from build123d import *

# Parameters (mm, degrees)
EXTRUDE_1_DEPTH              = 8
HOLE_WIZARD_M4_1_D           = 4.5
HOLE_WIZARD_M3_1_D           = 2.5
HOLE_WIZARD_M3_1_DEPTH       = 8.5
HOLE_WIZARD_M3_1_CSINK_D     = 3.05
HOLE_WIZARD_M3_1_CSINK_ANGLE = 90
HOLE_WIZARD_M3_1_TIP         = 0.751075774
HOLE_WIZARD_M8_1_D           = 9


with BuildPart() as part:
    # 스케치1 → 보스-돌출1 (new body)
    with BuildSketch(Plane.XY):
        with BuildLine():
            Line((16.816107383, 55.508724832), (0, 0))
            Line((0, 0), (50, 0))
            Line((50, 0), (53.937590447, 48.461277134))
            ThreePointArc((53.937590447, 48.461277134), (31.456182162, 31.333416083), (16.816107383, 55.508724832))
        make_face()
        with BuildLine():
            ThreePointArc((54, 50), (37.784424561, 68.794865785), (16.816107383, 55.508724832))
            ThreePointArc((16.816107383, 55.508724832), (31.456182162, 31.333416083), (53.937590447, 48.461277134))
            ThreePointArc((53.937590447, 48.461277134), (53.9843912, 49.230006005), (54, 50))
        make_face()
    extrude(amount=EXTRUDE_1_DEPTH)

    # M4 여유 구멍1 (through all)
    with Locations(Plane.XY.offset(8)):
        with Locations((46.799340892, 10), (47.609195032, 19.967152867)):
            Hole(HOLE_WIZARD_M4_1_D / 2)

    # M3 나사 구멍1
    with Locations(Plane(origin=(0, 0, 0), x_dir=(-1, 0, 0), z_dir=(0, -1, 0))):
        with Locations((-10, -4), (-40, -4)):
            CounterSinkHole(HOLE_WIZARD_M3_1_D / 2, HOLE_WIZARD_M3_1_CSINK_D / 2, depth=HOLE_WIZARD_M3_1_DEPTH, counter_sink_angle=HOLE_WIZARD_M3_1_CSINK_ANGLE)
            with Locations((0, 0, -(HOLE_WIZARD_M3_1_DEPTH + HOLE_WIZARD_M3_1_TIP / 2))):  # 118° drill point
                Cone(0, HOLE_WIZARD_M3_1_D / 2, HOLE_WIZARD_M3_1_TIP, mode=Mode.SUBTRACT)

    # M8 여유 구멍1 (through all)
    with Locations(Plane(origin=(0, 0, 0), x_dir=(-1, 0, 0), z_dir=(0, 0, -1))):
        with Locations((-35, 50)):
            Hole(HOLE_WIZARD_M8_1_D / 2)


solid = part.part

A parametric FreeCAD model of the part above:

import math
import FreeCAD as App
import Part
import Sketcher
from FreeCAD import Vector

doc = App.newDocument("Part")
params = doc.addObject("Spreadsheet::Sheet", "Params")
for row, (alias, value) in enumerate([
    ("sketch1_radius", "19 mm"),
    ("sketch1_width", "50 mm"),
    ("sketch1_length", "58 mm"),
    ("pad1_length", "8 mm"),
    ("sketch2_diameter", "4.5 mm"),
    ("hole_diameter", "4.5 mm"),
    ("sketch3_diameter", "2.5 mm"),
    ("hole2_diameter", "2.5 mm"),
    ("hole2_depth", "8.5 mm"),
    ("hole2_csink_diameter", "3.05 mm"),
    ("sketch4_diameter", "9 mm"),
    ("hole3_diameter", "9 mm"),
], start=1):
    params.set(f"A{row}", alias)
    params.set(f"B{row}", "=" + value)
    params.setAlias(f"B{row}", alias)

body = doc.addObject("PartDesign::Body", "Body")

# Sketch on XY plane
sketch1 = body.newObject("Sketcher::SketchObject", "Sketch")
sketch1.AttachmentSupport = (doc.getObject("XY_Plane"), [""])
sketch1.MapMode = "FlatFace"
sketch1.addGeometry([
    Part.LineSegment(Vector(16.8, 55.5, 0), Vector(0, 0, 0)),  # 0
    Part.LineSegment(Vector(0, 0, 0), Vector(50, 0, 0)),  # 1
    Part.LineSegment(Vector(50, 0, 0), Vector(53.9, 48.5, 0)),  # 2
    Part.ArcOfCircle(Part.Circle(Vector(35, 50, 0), Vector(0, 0, 1), 19), math.radians(-4.65), math.radians(0)),  # 3
    Part.ArcOfCircle(Part.Circle(Vector(35, 50, 0), Vector(0, 0, 1), 19), math.radians(0), math.radians(163)),  # 4
], False)
sketch1.addConstraint([
    Sketcher.Constraint("Coincident", 0, 2, 1, 1),
    Sketcher.Constraint("Coincident", 1, 2, 2, 1),
    Sketcher.Constraint("Tangent", 2, 2, 3, 1),
    Sketcher.Constraint("Tangent", 3, 2, 4, 1),
    Sketcher.Constraint("Tangent", 4, 2, 0, 1),
    Sketcher.Constraint("Horizontal", 1),
    Sketcher.Constraint("Coincident", 0, 2, -1, 1),
    Sketcher.Constraint("Equal", 3, 4),
    Sketcher.Constraint("Horizontal", 4, 3, 3, 2),
    Sketcher.Constraint("Radius", 3, 19.0),
    Sketcher.Constraint("DistanceX", 1, 1, 1, 2, 50.0),
    Sketcher.Constraint("Distance", 0, 58.0),
    Sketcher.Constraint("DistanceX", -1, 1, 3, 3, 35.0),
])
sketch1.setExpression("Constraints[9]", "Params.sketch1_radius")
sketch1.setExpression("Constraints[10]", "Params.sketch1_width")
sketch1.setExpression("Constraints[11]", "Params.sketch1_length")
pad1 = body.newObject("PartDesign::Pad", "Pad")
pad1.Profile = sketch1
pad1.setExpression("Length", "Params.pad1_length")

# Sketch on XY plane
sketch2 = body.newObject("Sketcher::SketchObject", "Sketch001")
sketch2.AttachmentSupport = (doc.getObject("XY_Plane"), [""])
sketch2.MapMode = "FlatFace"
sketch2.AttachmentOffset = App.Placement(Vector(0, 0, 8), App.Rotation())
sketch2.addGeometry([
    Part.Circle(Vector(46.8, 10, 0), Vector(0, 0, 1), 2.2),
    Part.Circle(Vector(47.6, 20, 0), Vector(0, 0, 1), 2.2),
], False)
sketch2.addConstraint([
    Sketcher.Constraint("Equal", 0, 1),
    Sketcher.Constraint("Diameter", 0, 4.5),
    Sketcher.Constraint("DistanceY", -1, 1, 0, 3, 10.0),
    Sketcher.Constraint("DistanceX", -1, 1, 0, 3, 46.799341),
    Sketcher.Constraint("DistanceX", -1, 1, 1, 3, 47.609195),
    Sketcher.Constraint("DistanceY", -1, 1, 1, 3, 19.967153),
])
sketch2.setExpression("Constraints[1]", "Params.sketch2_diameter")
doc.recompute()
hole = body.newObject("PartDesign::Hole", "Hole")
hole.Profile = sketch2
hole.ThreadType = "None"
hole.setExpression("Diameter", "Params.hole_diameter")
hole.DepthType = "ThroughAll"

# Sketch on XZ plane
sketch3 = body.newObject("Sketcher::SketchObject", "Sketch002")
sketch3.AttachmentSupport = (doc.getObject("XZ_Plane"), [""])
sketch3.MapMode = "FlatFace"
sketch3.addGeometry([
    Part.Circle(Vector(10, 4, 0), Vector(0, 0, 1), 1.2),
    Part.Circle(Vector(40, 4, 0), Vector(0, 0, 1), 1.2),
], False)
sketch3.addConstraint([
    Sketcher.Constraint("Equal", 0, 1),
    Sketcher.Constraint("Horizontal", 0, 3, 1, 3),
    Sketcher.Constraint("Diameter", 0, 2.5),
    Sketcher.Constraint("DistanceX", -1, 1, 0, 3, 10.0),
    Sketcher.Constraint("DistanceY", -1, 1, 0, 3, 4.0),
    Sketcher.Constraint("DistanceX", -1, 1, 1, 3, 40.0),
])
sketch3.setExpression("Constraints[2]", "Params.sketch3_diameter")
doc.recompute()
hole2 = body.newObject("PartDesign::Hole", "Hole001")
hole2.Profile = sketch3
hole2.ThreadType = "None"
hole2.setExpression("Diameter", "Params.hole2_diameter")
hole2.DepthType = "Dimension"
hole2.setExpression("Depth", "Params.hole2_depth")
hole2.DrillPoint = "Angled"
hole2.DrillPointAngle = 118
hole2.HoleCutType = "Countersink"
hole2.setExpression("HoleCutDiameter", "Params.hole2_csink_diameter")
hole2.HoleCutCountersinkAngle = 90

# Sketch on XY plane
sketch4 = body.newObject("Sketcher::SketchObject", "Sketch003")
sketch4.AttachmentSupport = (doc.getObject("XY_Plane"), [""])
sketch4.MapMode = "FlatFace"
sketch4.addGeometry(Part.Circle(Vector(35, 50, 0), Vector(0, 0, 1), 4.5), False)
sketch4.addConstraint([
    Sketcher.Constraint("Diameter", 0, 9.0),
    Sketcher.Constraint("DistanceX", -1, 1, 0, 3, 35.0),
    Sketcher.Constraint("DistanceY", -1, 1, 0, 3, 50.0),
])
sketch4.setExpression("Constraints[0]", "Params.sketch4_diameter")
doc.recompute()
hole3 = body.newObject("PartDesign::Hole", "Hole002")
hole3.Profile = sketch4
hole3.ThreadType = "None"
hole3.setExpression("Diameter", "Params.hole3_diameter")
hole3.DepthType = "ThroughAll"
hole3.Reversed = True

doc.recompute()
